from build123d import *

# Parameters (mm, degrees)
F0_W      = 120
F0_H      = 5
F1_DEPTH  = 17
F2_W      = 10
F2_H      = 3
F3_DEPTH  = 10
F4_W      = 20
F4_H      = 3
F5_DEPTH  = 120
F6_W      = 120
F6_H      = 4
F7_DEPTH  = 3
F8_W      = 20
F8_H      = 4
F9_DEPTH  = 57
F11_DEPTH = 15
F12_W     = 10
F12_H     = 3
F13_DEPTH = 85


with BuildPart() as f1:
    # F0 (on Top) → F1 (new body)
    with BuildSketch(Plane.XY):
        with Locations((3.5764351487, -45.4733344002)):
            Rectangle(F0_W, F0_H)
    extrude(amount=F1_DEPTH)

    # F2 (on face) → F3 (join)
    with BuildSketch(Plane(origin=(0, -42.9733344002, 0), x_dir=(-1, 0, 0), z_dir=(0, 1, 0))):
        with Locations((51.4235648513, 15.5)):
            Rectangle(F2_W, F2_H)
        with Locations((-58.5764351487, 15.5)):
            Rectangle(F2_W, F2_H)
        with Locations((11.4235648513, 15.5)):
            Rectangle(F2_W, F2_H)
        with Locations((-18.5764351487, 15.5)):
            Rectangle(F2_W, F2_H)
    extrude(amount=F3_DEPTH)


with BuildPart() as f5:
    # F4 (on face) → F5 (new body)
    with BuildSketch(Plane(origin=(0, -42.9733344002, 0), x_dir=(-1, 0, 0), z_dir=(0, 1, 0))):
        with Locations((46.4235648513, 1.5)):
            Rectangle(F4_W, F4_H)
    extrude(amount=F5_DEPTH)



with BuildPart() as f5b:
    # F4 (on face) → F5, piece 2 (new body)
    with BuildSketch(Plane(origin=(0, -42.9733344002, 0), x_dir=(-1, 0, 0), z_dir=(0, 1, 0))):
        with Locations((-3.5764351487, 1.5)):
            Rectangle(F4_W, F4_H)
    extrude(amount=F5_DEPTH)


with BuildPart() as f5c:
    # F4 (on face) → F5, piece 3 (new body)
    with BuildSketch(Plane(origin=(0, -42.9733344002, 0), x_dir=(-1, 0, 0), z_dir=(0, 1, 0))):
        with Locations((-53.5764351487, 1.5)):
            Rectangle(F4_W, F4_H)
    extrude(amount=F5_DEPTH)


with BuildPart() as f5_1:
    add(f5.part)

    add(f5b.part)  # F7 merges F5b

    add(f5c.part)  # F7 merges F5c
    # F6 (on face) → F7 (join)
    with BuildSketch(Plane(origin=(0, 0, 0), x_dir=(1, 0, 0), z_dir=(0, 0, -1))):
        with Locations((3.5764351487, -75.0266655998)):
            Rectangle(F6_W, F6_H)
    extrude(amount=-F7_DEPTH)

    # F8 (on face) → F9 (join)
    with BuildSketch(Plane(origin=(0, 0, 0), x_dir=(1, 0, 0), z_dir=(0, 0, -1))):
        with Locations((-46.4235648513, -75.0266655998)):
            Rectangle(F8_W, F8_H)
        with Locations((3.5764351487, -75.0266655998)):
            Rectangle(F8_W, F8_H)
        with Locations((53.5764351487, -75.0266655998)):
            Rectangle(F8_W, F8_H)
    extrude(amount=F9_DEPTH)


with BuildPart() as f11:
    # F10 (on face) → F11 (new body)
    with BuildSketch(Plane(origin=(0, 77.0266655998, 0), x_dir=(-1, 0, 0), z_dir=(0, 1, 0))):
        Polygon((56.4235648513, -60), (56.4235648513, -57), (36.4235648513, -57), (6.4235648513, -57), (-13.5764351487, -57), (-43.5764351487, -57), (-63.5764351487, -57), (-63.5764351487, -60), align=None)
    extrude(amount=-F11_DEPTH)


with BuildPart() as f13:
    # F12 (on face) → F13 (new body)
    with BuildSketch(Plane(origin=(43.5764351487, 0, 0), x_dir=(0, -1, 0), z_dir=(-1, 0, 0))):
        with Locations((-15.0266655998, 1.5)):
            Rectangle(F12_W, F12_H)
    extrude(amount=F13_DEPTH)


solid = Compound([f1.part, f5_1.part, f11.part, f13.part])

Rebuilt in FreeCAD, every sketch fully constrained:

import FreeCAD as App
import Part
import Sketcher


def add_polygon(sketch, points):
    """Adds a closed chain of lines whose ends are joined by coincident constraints."""
    first, n = sketch.GeometryCount, len(points)
    for a, b in zip(points, points[1:] + points[:1]):
        sketch.addGeometry(Part.LineSegment(App.Vector(*a, 0), App.Vector(*b, 0)), False)
    for i in range(n):
        sketch.addConstraint(Sketcher.Constraint("Coincident", first + i, 2, first + (i + 1) % n, 1))

doc = App.newDocument("Part")
body = doc.addObject("PartDesign::Body", "Body")

# Sketch on XY plane
sketch1 = body.newObject("Sketcher::SketchObject", "Sketch")
sketch1.AttachmentSupport = (doc.getObject("XY_Plane"), [""])
sketch1.MapMode = "FlatFace"
add_polygon(sketch1, [(-56.423565, -42.973334), (-56.423565, -47.973334), (63.576435, -47.973334), (63.576435, -42.973334)])  # lines 0-3
sketch1.addConstraint(Sketcher.Constraint("Vertical", 0))
sketch1.addConstraint(Sketcher.Constraint("Horizontal", 1))
sketch1.addConstraint(Sketcher.Constraint("Vertical", 2))
sketch1.addConstraint(Sketcher.Constraint("Horizontal", 3))
sketch1.addConstraint(Sketcher.Constraint("DistanceX", 1, 1, 1, 2, 120.0))
sketch1.addConstraint(Sketcher.Constraint("DistanceY", 0, 2, 0, 1, 5.0))
sketch1.addConstraint(Sketcher.Constraint("DistanceX", 0, 2, -1, 1, 56.423565))
sketch1.addConstraint(Sketcher.Constraint("DistanceY", 0, 2, -1, 1, 47.973334))
pad1 = body.newObject("PartDesign::Pad", "Pad")
pad1.Profile = sketch1
pad1.Length = 17

# Sketch on XZ plane
sketch2 = body.newObject("Sketcher::SketchObject", "Sketch001")
sketch2.AttachmentSupport = (doc.getObject("XZ_Plane"), [""])
sketch2.MapMode = "FlatFace"
sketch2.AttachmentOffset = App.Placement(App.Vector(0, 0, 42.973334), App.Rotation())
add_polygon(sketch2, [(-46.423565, 17), (-46.423565, 14), (-56.423565, 14), (-56.423565, 17)])  # lines 0-3
add_polygon(sketch2, [(63.576435, 17), (63.576435, 14), (53.576435, 14), (53.576435, 17)])  # lines 4-7
add_polygon(sketch2, [(-6.423565, 17), (-6.423565, 14), (-16.423565, 14), (-16.423565, 17)])  # lines 8-11
add_polygon(sketch2, [(23.576435, 17), (23.576435, 14), (13.576435, 14), (13.576435, 17)])  # lines 12-15
sketch2.addConstraint(Sketcher.Constraint("Vertical", 0))
sketch2.addConstraint(Sketcher.Constraint("Horizontal", 1))
sketch2.addConstraint(Sketcher.Constraint("Vertical", 2))
sketch2.addConstraint(Sketcher.Constraint("Horizontal", 3))
sketch2.addConstraint(Sketcher.Constraint("Vertical", 4))
sketch2.addConstraint(Sketcher.Constraint("Horizontal", 5))
sketch2.addConstraint(Sketcher.Constraint("Vertical", 6))
sketch2.addConstraint(Sketcher.Constraint("Horizontal", 7))
sketch2.addConstraint(Sketcher.Constraint("Vertical", 8))
sketch2.addConstraint(Sketcher.Constraint("Horizontal", 9))
sketch2.addConstraint(Sketcher.Constraint("Vertical", 10))
sketch2.addConstraint(Sketcher.Constraint("Horizontal", 11))
sketch2.addConstraint(Sketcher.Constraint("Vertical", 12))
sketch2.addConstraint(Sketcher.Constraint("Horizontal", 13))
sketch2.addConstraint(Sketcher.Constraint("Vertical", 14))
sketch2.addConstraint(Sketcher.Constraint("Horizontal", 15))
sketch2.addConstraint(Sketcher.Constraint("Horizontal", 1, 2, 4, 2))
sketch2.addConstraint(Sketcher.Constraint("Horizontal", 3, 2, 6, 2))
sketch2.addConstraint(Sketcher.Constraint("Horizontal", 5, 2, 8, 2))
sketch2.addConstraint(Sketcher.Constraint("Horizontal", 7, 2, 10, 2))
sketch2.addConstraint(Sketcher.Constraint("Horizontal", 9, 2, 12, 2))
sketch2.addConstraint(Sketcher.Constraint("Horizontal", 11, 2, 14, 2))
sketch2.addConstraint(Sketcher.Constraint("Equal", 3, 5))
sketch2.addConstraint(Sketcher.Constraint("Equal", 7, 9))
sketch2.addConstraint(Sketcher.Constraint("Equal", 11, 13))
sketch2.addConstraint(Sketcher.Constraint("DistanceX", 1, 2, 1, 1, 10.0))
sketch2.addConstraint(Sketcher.Constraint("DistanceY", 0, 2, 0, 1, 3.0))
sketch2.addConstraint(Sketcher.Constraint("DistanceY", -1, 1, 0, 2, 14.0))
sketch2.addConstraint(Sketcher.Constraint("DistanceX", 0, 2, 4, 2, 110.0))
sketch2.addConstraint(Sketcher.Constraint("DistanceX", 0, 2, 8, 2, 40.0))
sketch2.addConstraint(Sketcher.Constraint("DistanceX", 12, 2, 5, 2, 30.0))
sketch2.addConstraint(Sketcher.Constraint("DistanceX", 0, 2, -1, 1, 46.423565))
pad2 = body.newObject("PartDesign::Pad", "Pad001")
pad2.Profile = sketch2
pad2.Length = 10
pad2.Reversed = True
body2 = doc.addObject("PartDesign::Body", "Body001")

# Sketch on XZ plane
sketch3 = body2.newObject("Sketcher::SketchObject", "Sketch002")
sketch3.AttachmentSupport = (doc.getObject("XZ_Plane001"), [""])
sketch3.MapMode = "FlatFace"
sketch3.AttachmentOffset = App.Placement(App.Vector(0, 0, 42.973334), App.Rotation())
add_polygon(sketch3, [(-36.423565, 3), (-36.423565, 0), (-56.423565, 0), (-56.423565, 3)])  # lines 0-3
sketch3.addConstraint(Sketcher.Constraint("Vertical", 0))
sketch3.addConstraint(Sketcher.Constraint("Horizontal", 1))
sketch3.addConstraint(Sketcher.Constraint("Vertical", 2))
sketch3.addConstraint(Sketcher.Constraint("Horizontal", 3))
sketch3.addConstraint(Sketcher.Constraint("PointOnObject", 0, 2, -1))
sketch3.addConstraint(Sketcher.Constraint("DistanceX", 1, 2, 1, 1, 20.0))
sketch3.addConstraint(Sketcher.Constraint("DistanceY", 0, 2, 0, 1, 3.0))
sketch3.addConstraint(Sketcher.Constraint("DistanceX", 0, 2, -1, 1, 36.423565))
pad3 = body2.newObject("PartDesign::Pad", "Pad002")
pad3.Profile = sketch3
pad3.Length = 120
pad3.Reversed = True
body3 = doc.addObject("PartDesign::Body", "Body002")

# Sketch on XZ plane
sketch4 = body3.newObject("Sketcher::SketchObject", "Sketch003")
sketch4.AttachmentSupport = (doc.getObject("XZ_Plane002"), [""])
sketch4.MapMode = "FlatFace"
sketch4.AttachmentOffset = App.Placement(App.Vector(0, 0, 42.973334), App.Rotation())
add_polygon(sketch4, [(13.576435, 3), (13.576435, 0), (-6.423565, 0), (-6.423565, 3)])  # lines 0-3
sketch4.addConstraint(Sketcher.Constraint("Vertical", 0))
sketch4.addConstraint(Sketcher.Constraint("Horizontal", 1))
sketch4.addConstraint(Sketcher.Constraint("Vertical", 2))
sketch4.addConstraint(Sketcher.Constraint("Horizontal", 3))
sketch4.addConstraint(Sketcher.Constraint("PointOnObject", 0, 2, -1))
sketch4.addConstraint(Sketcher.Constraint("DistanceX", 1, 2, 1, 1, 20.0))
sketch4.addConstraint(Sketcher.Constraint("DistanceY", 0, 2, 0, 1, 3.0))
sketch4.addConstraint(Sketcher.Constraint("DistanceX", -1, 1, 0, 2, 13.576435))
pad4 = body3.newObject("PartDesign::Pad", "Pad003")
pad4.Profile = sketch4
pad4.Length = 120
pad4.Reversed = True
body4 = doc.addObject("PartDesign::Body", "Body003")

# Sketch on XZ plane
sketch5 = body4.newObject("Sketcher::SketchObject", "Sketch004")
sketch5.AttachmentSupport = (doc.getObject("XZ_Plane003"), [""])
sketch5.MapMode = "FlatFace"
sketch5.AttachmentOffset = App.Placement(App.Vector(0, 0, 42.973334), App.Rotation())
add_polygon(sketch5, [(63.576435, 3), (63.576435, 0), (43.576435, 0), (43.576435, 3)])  # lines 0-3
sketch5.addConstraint(Sketcher.Constraint("Vertical", 0))
sketch5.addConstraint(Sketcher.Constraint("Horizontal", 1))
sketch5.addConstraint(Sketcher.Constraint("Vertical", 2))
sketch5.addConstraint(Sketcher.Constraint("Horizontal", 3))
sketch5.addConstraint(Sketcher.Constraint("PointOnObject", 0, 2, -1))
sketch5.addConstraint(Sketcher.Constraint("DistanceX", 1, 2, 1, 1, 20.0))
sketch5.addConstraint(Sketcher.Constraint("DistanceY", 0, 2, 0, 1, 3.0))
sketch5.addConstraint(Sketcher.Constraint("DistanceX", -1, 1, 0, 2, 63.576435))
pad5 = body4.newObject("PartDesign::Pad", "Pad004")
pad5.Profile = sketch5
pad5.Length = 120
pad5.Reversed = True
body2.AllowCompound = True
doc.recompute()

boolean = body2.newObject("PartDesign::Boolean", "Boolean")
boolean.Type = "Fuse"
boolean.addObjects([body3])
doc.recompute()

boolean2 = body2.newObject("PartDesign::Boolean", "Boolean001")
boolean2.Type = "Fuse"
boolean2.addObjects([body4])

# Sketch on XY plane
sketch6 = body2.newObject("Sketcher::SketchObject", "Sketch005")
sketch6.AttachmentSupport = (doc.getObject("XY_Plane001"), [""])
sketch6.MapMode = "FlatFace"
add_polygon(sketch6, [(-56.423565, 73.026666), (-56.423565, 77.026666), (63.576435, 77.026666), (63.576435, 73.026666)])  # lines 0-3
sketch6.addConstraint(Sketcher.Constraint("Vertical", 0))
sketch6.addConstraint(Sketcher.Constraint("Horizontal", 1))
sketch6.addConstraint(Sketcher.Constraint("Vertical", 2))
sketch6.addConstraint(Sketcher.Constraint("Horizontal", 3))
sketch6.addConstraint(Sketcher.Constraint("DistanceX", 1, 1, 1, 2, 120.0))
sketch6.addConstraint(Sketcher.Constraint("DistanceY", 0, 1, 0, 2, 4.0))
sketch6.addConstraint(Sketcher.Constraint("DistanceX", 0, 2, -1, 1, 56.423565))
sketch6.addConstraint(Sketcher.Constraint("DistanceY", -1, 1, 0, 2, 77.026666))
pad6 = body2.newObject("PartDesign::Pad", "Pad005")
pad6.Profile = sketch6
pad6.Length = 3

# Sketch on XY plane
sketch7 = body2.newObject("Sketcher::SketchObject", "Sketch006")
sketch7.AttachmentSupport = (doc.getObject("XY_Plane001"), [""])
sketch7.MapMode = "FlatFace"
add_polygon(sketch7, [(-56.423565, 73.026666), (-56.423565, 77.026666), (-36.423565, 77.026666), (-36.423565, 73.026666)])  # lines 0-3
add_polygon(sketch7, [(-6.423565, 73.026666), (-6.423565, 77.026666), (13.576435, 77.026666), (13.576435, 73.026666)])  # lines 4-7
add_polygon(sketch7, [(43.576435, 73.026666), (43.576435, 77.026666), (63.576435, 77.026666), (63.576435, 73.026666)])  # lines 8-11
sketch7.addConstraint(Sketcher.Constraint("Vertical", 0))
sketch7.addConstraint(Sketcher.Constraint("Horizontal", 1))
sketch7.addConstraint(Sketcher.Constraint("Vertical", 2))
sketch7.addConstraint(Sketcher.Constraint("Horizontal", 3))
sketch7.addConstraint(Sketcher.Constraint("Vertical", 4))
sketch7.addConstraint(Sketcher.Constraint("Horizontal", 5))
sketch7.addConstraint(Sketcher.Constraint("Vertical", 6))
sketch7.addConstraint(Sketcher.Constraint("Horizontal", 7))
sketch7.addConstraint(Sketcher.Constraint("Vertical", 8))
sketch7.addConstraint(Sketcher.Constraint("Horizontal", 9))
sketch7.addConstraint(Sketcher.Constraint("Vertical", 10))
sketch7.addConstraint(Sketcher.Constraint("Horizontal", 11))
sketch7.addConstraint(Sketcher.Constraint("Horizontal", 1, 2, 4, 2))
sketch7.addConstraint(Sketcher.Constraint("Horizontal", 3, 2, 6, 2))
sketch7.addConstraint(Sketcher.Constraint("Horizontal", 5, 2, 8, 2))
sketch7.addConstraint(Sketcher.Constraint("Horizontal", 7, 2, 10, 2))
sketch7.addConstraint(Sketcher.Constraint("Equal", 3, 5))
sketch7.addConstraint(Sketcher.Constraint("Equal", 7, 9))
sketch7.addConstraint(Sketcher.Constraint("DistanceX", 1, 1, 1, 2, 20.0))
sketch7.addConstraint(Sketcher.Constraint("DistanceY", 0, 1, 0, 2, 4.0))
sketch7.addConstraint(Sketcher.Constraint("DistanceX", 1, 2, 4, 2, 30.0))
sketch7.addConstraint(Sketcher.Constraint("DistanceX", 5, 2, 8, 2, 30.0))
sketch7.addConstraint(Sketcher.Constraint("DistanceX", 0, 2, -1, 1, 56.423565))
sketch7.addConstraint(Sketcher.Constraint("DistanceY", -1, 1, 0, 2, 77.026666))
pad7 = body2.newObject("PartDesign::Pad", "Pad006")
pad7.Profile = sketch7
pad7.Length = 57
pad7.Reversed = True
body5 = doc.addObject("PartDesign::Body", "Body004")

# Sketch on XZ plane
sketch8 = body5.newObject("Sketcher::SketchObject", "Sketch007")
sketch8.AttachmentSupport = (doc.getObject("XZ_Plane004"), [""])
sketch8.MapMode = "FlatFace"
sketch8.AttachmentOffset = App.Placement(App.Vector(0, 0, -77.026666), App.Rotation())
add_polygon(sketch8, [(-56.423565, -60), (-56.423565, -57), (63.576435, -57), (63.576435, -60)])  # lines 0-3
sketch8.addConstraint(Sketcher.Constraint("Vertical", 0))
sketch8.addConstraint(Sketcher.Constraint("Horizontal", 1))
sketch8.addConstraint(Sketcher.Constraint("Vertical", 2))
sketch8.addConstraint(Sketcher.Constraint("Horizontal", 3))
sketch8.addConstraint(Sketcher.Constraint("DistanceX", 1, 1, 1, 2, 120.0))
sketch8.addConstraint(Sketcher.Constraint("DistanceY", 0, 1, 0, 2, 3.0))
sketch8.addConstraint(Sketcher.Constraint("DistanceY", 0, 2, -1, 1, 57.0))
sketch8.addConstraint(Sketcher.Constraint("DistanceX", 0, 2, -1, 1, 56.423565))
pad8 = body5.newObject("PartDesign::Pad", "Pad007")
pad8.Profile = sketch8
pad8.Length = 15
body6 = doc.addObject("PartDesign::Body", "Body005")

# Sketch on YZ plane
sketch9 = body6.newObject("Sketcher::SketchObject", "Sketch008")
sketch9.AttachmentSupport = (doc.getObject("YZ_Plane005"), [""])
sketch9.MapMode = "FlatFace"
sketch9.AttachmentOffset = App.Placement(App.Vector(0, 0, 43.576435), App.Rotation())
add_polygon(sketch9, [(20.026666, 3), (20.026666, 0), (10.026666, 0), (10.026666, 3)])  # lines 0-3
sketch9.addConstraint(Sketcher.Constraint("Vertical", 0))
sketch9.addConstraint(Sketcher.Constraint("Horizontal", 1))
sketch9.addConstraint(Sketcher.Constraint("Vertical", 2))
sketch9.addConstraint(Sketcher.Constraint("Horizontal", 3))
sketch9.addConstraint(Sketcher.Constraint("PointOnObject", 0, 2, -1))
sketch9.addConstraint(Sketcher.Constraint("DistanceX", 1, 2, 1, 1, 10.0))
sketch9.addConstraint(Sketcher.Constraint("DistanceY", 0, 2, 0, 1, 3.0))
sketch9.addConstraint(Sketcher.Constraint("DistanceX", -1, 1, 0, 2, 20.026666))
pad9 = body6.newObject("PartDesign::Pad", "Pad008")
pad9.Profile = sketch9
pad9.Length = 85
pad9.Reversed = True

doc.recompute()
